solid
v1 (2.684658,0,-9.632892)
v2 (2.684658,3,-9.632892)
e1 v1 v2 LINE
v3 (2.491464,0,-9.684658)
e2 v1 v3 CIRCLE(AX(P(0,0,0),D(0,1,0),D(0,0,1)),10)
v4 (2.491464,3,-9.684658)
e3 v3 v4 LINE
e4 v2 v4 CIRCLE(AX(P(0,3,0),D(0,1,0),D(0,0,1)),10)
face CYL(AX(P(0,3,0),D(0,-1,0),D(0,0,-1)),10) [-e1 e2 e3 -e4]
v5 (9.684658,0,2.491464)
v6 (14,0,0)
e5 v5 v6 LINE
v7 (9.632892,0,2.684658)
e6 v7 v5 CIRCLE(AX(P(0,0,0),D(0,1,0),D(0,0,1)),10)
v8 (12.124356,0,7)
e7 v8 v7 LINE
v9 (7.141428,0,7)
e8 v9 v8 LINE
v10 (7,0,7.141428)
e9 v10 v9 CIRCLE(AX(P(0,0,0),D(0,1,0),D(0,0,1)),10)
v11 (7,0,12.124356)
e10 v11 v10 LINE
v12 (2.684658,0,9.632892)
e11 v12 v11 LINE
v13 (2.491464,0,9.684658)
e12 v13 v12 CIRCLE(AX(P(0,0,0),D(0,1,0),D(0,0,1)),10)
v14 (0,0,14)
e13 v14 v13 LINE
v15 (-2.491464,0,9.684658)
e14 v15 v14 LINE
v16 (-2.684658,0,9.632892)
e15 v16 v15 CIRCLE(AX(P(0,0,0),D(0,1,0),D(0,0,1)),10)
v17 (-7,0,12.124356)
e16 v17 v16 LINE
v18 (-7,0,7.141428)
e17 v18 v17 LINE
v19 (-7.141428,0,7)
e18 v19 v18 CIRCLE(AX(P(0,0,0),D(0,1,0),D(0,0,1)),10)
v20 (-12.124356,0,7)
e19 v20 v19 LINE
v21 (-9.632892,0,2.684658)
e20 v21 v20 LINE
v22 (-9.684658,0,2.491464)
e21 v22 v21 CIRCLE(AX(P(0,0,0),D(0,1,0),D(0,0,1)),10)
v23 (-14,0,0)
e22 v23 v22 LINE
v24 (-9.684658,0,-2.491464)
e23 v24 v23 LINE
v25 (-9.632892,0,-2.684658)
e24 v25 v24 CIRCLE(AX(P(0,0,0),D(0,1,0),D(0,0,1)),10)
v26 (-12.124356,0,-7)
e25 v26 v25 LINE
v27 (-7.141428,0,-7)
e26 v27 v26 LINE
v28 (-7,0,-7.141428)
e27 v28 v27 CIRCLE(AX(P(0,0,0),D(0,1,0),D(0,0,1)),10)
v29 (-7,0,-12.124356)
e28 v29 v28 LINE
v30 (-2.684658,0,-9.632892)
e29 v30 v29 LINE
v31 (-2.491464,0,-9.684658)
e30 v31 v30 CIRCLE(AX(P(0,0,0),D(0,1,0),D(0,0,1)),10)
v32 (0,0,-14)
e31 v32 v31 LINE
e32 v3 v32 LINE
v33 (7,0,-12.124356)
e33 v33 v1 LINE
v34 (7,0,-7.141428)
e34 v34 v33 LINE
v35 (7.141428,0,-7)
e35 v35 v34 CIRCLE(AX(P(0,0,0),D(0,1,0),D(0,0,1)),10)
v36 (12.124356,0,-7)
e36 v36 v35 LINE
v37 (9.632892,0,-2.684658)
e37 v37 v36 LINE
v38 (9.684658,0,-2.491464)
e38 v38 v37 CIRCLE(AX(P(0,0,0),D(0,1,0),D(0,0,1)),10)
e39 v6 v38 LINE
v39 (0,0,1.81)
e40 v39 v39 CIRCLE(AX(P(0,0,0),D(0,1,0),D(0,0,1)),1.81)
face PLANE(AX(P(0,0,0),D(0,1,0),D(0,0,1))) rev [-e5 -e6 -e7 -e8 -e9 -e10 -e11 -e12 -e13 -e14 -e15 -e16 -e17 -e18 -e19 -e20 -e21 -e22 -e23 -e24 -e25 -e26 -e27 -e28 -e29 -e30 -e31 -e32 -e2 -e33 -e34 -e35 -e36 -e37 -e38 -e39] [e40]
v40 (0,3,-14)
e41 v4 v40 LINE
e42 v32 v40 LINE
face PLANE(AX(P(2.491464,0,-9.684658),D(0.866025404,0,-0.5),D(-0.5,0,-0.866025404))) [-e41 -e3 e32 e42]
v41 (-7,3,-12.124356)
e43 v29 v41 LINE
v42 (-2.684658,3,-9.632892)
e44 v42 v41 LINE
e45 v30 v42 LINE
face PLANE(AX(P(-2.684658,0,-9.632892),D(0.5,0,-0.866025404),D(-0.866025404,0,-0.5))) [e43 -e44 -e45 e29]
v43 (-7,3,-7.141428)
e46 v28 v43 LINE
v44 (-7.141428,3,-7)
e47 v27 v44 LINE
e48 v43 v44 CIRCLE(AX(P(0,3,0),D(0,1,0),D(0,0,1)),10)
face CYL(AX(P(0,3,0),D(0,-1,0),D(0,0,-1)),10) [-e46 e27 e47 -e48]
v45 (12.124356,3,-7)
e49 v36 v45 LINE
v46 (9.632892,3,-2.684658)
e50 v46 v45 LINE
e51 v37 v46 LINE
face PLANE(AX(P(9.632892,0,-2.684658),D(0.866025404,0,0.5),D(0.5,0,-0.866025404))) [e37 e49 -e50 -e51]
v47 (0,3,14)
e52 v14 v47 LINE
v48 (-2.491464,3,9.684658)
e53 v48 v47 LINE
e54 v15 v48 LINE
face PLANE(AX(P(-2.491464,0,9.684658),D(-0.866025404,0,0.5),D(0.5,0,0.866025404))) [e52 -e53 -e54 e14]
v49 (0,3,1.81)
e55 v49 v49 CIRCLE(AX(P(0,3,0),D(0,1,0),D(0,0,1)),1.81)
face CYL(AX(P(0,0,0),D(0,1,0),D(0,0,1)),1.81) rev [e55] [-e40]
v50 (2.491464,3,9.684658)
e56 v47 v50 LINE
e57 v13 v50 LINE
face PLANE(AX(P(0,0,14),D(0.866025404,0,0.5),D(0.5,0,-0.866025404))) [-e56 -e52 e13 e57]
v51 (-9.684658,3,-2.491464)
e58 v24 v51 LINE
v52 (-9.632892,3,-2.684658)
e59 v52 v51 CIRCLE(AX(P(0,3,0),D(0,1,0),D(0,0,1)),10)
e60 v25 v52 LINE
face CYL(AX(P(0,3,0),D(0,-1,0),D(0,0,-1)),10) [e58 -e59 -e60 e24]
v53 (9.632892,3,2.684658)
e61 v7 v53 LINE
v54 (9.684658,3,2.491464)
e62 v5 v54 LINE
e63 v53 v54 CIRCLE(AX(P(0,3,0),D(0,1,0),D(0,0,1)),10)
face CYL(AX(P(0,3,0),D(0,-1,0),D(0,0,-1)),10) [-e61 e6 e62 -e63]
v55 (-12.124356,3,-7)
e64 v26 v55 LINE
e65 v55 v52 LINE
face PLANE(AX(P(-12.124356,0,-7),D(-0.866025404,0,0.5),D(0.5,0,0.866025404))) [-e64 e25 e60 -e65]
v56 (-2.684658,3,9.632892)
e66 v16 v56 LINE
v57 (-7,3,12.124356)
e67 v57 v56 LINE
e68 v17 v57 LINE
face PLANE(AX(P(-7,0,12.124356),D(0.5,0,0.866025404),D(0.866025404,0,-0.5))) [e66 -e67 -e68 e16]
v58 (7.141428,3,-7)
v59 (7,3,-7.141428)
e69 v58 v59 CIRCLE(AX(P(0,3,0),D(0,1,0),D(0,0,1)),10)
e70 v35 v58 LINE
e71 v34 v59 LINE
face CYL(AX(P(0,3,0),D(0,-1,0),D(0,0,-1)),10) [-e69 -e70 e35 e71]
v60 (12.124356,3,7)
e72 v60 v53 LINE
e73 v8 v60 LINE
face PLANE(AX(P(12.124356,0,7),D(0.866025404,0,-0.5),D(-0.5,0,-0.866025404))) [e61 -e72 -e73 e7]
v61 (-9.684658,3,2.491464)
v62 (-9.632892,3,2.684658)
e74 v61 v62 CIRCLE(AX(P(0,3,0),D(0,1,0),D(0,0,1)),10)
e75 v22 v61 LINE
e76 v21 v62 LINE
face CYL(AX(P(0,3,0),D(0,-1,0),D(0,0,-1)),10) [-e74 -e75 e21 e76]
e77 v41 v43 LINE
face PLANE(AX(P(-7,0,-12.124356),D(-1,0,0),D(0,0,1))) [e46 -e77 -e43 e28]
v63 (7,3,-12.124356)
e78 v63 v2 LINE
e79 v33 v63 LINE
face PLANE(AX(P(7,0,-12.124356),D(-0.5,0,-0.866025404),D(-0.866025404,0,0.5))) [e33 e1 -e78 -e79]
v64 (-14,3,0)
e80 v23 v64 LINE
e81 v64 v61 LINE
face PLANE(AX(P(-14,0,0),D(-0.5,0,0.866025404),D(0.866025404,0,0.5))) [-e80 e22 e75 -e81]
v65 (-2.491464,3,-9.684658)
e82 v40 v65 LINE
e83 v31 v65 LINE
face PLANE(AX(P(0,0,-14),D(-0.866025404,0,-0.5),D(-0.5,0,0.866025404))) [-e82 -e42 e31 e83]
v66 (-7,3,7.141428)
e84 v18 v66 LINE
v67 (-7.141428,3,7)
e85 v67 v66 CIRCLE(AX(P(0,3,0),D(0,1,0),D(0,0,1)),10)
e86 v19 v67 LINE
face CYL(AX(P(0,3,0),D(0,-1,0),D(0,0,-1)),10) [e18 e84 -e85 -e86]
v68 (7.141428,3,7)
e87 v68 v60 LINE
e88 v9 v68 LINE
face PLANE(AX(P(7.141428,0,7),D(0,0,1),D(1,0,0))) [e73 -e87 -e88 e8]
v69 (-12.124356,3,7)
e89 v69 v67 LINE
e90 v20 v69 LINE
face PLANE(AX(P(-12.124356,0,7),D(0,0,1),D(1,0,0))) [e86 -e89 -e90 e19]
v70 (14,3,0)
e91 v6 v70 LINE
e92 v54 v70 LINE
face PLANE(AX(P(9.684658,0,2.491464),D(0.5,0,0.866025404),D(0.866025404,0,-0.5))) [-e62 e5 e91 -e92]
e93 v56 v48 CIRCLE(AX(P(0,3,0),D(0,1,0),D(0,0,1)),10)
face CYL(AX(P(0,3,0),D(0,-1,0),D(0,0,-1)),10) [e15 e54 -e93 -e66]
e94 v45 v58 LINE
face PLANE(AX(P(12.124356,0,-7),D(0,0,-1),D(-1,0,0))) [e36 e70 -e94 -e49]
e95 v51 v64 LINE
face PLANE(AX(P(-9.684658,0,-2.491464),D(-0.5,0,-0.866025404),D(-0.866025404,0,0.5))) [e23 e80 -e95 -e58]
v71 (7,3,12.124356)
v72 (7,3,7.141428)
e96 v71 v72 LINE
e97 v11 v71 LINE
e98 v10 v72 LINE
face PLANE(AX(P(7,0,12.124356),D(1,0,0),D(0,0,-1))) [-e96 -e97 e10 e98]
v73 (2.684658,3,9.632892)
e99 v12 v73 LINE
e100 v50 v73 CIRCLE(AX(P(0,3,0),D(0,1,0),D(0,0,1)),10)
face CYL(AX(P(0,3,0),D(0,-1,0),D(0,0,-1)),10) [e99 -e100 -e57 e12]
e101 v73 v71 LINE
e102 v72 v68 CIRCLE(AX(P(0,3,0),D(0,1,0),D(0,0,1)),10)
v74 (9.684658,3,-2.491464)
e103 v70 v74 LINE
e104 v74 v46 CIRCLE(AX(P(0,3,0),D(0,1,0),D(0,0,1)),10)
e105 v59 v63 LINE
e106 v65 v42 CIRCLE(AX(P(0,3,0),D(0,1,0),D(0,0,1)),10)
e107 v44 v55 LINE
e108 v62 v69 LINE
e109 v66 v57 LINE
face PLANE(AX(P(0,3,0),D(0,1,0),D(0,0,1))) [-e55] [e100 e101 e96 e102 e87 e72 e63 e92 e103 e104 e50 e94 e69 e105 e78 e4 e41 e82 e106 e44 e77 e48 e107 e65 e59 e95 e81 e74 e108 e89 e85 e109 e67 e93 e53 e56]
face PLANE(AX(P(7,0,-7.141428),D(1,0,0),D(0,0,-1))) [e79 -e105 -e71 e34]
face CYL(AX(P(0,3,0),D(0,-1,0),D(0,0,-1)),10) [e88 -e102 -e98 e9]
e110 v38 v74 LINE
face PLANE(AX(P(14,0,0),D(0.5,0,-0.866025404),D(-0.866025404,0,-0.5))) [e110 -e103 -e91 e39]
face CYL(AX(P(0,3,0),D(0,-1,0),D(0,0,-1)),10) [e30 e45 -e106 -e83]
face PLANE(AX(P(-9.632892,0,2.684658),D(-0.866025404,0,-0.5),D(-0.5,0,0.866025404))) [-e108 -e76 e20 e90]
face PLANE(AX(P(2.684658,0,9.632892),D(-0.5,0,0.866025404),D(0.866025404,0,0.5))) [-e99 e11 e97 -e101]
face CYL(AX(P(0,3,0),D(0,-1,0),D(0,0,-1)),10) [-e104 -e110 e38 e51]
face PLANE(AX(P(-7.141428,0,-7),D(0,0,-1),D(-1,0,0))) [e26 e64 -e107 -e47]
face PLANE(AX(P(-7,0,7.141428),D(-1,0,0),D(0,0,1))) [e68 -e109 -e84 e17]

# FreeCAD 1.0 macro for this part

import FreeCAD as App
import Part
import Sketcher
Q = App.Units.Quantity

doc = App.newDocument("Part")
body = doc.addObject("PartDesign::Body", "Body")

sketch1 = body.newObject("Sketcher::SketchObject", "Sketch")
sketch1.AttachmentSupport = (doc.getObject("XZ_Plane"), [""])
sketch1.MapMode = "FlatFace"
sketch1.addGeometry(Part.Circle(App.Vector(0, 0, 0), App.Vector(0, 0, 1), 10), False)
sketch1.addConstraint(Sketcher.Constraint("Coincident", 0, 3, -1, 1))
sketch1.addConstraint(Sketcher.Constraint("Diameter", 0, 20.0))
pad1 = body.newObject("PartDesign::Pad", "Pad")
pad1.Profile = sketch1
pad1.Length = 3
pad1.Reversed = True

sketch2 = body.newObject("Sketcher::SketchObject", "Sketch001")
sketch2.AttachmentSupport = (doc.getObject("XZ_Plane"), [""])
sketch2.MapMode = "FlatFace"
sketch2.AttachmentOffset = App.Placement(App.Vector(0, 0, -3), App.Rotation())
sketch2.addGeometry(Part.LineSegment(App.Vector(0, -14, 0), App.Vector(-2.5, -9.7, 0)), False)
sketch2.addGeometry(Part.LineSegment(App.Vector(-2.5, -9.7, 0), App.Vector(2.5, -9.7, 0)), False)
sketch2.addGeometry(Part.LineSegment(App.Vector(2.5, -9.7, 0), App.Vector(0, -14, 0)), False)
sketch2.addConstraint(Sketcher.Constraint("Coincident", 0, 2, 1, 1))
sketch2.addConstraint(Sketcher.Constraint("Coincident", 1, 2, 2, 1))
sketch2.addConstraint(Sketcher.Constraint("Coincident", 2, 2, 0, 1))
sketch2.addConstraint(Sketcher.Constraint("Horizontal", 1))
sketch2.addConstraint(Sketcher.Constraint("PointOnObject", 2, 2, -2))
sketch2.addConstraint(Sketcher.Constraint("Equal", 0, 2))
sketch2.addConstraint(Sketcher.Constraint("Angle", 0, Q("120 deg")))
sketch2.addConstraint(Sketcher.Constraint("DistanceY", 2, 2, -1, 1, 14.0))
sketch2.addConstraint(Sketcher.Constraint("DistanceX", 1, 1, 1, 2, 4.982927))
pad2 = body.newObject("PartDesign::Pad", "Pad001")
pad2.Profile = sketch2
pad2.Length = 3
doc.recompute()

polarpattern = body.newObject("PartDesign::PolarPattern", "PolarPattern")
polarpattern.Originals = [pad2]
polarpattern.Axis = (doc.getObject("Y_Axis"), [""])
polarpattern.Angle = 360
polarpattern.Occurrences = 12
body.Tip = polarpattern

sketch3 = body.newObject("Sketcher::SketchObject", "Sketch002")
sketch3.AttachmentSupport = (doc.getObject("XZ_Plane"), [""])
sketch3.MapMode = "FlatFace"
sketch3.AttachmentOffset = App.Placement(App.Vector(0, 0, -3), App.Rotation())
sketch3.addGeometry(Part.Circle(App.Vector(0, 0, 0), App.Vector(0, 0, 1), 1.8), False)
sketch3.addConstraint(Sketcher.Constraint("Coincident", 0, 3, -1, 1))
sketch3.addConstraint(Sketcher.Constraint("Diameter", 0, 3.62))
pocket1 = body.newObject("PartDesign::Pocket", "Pocket")
pocket1.Profile = sketch3
pocket1.Length = 3
pocket1.Reversed = True

doc.recompute()
